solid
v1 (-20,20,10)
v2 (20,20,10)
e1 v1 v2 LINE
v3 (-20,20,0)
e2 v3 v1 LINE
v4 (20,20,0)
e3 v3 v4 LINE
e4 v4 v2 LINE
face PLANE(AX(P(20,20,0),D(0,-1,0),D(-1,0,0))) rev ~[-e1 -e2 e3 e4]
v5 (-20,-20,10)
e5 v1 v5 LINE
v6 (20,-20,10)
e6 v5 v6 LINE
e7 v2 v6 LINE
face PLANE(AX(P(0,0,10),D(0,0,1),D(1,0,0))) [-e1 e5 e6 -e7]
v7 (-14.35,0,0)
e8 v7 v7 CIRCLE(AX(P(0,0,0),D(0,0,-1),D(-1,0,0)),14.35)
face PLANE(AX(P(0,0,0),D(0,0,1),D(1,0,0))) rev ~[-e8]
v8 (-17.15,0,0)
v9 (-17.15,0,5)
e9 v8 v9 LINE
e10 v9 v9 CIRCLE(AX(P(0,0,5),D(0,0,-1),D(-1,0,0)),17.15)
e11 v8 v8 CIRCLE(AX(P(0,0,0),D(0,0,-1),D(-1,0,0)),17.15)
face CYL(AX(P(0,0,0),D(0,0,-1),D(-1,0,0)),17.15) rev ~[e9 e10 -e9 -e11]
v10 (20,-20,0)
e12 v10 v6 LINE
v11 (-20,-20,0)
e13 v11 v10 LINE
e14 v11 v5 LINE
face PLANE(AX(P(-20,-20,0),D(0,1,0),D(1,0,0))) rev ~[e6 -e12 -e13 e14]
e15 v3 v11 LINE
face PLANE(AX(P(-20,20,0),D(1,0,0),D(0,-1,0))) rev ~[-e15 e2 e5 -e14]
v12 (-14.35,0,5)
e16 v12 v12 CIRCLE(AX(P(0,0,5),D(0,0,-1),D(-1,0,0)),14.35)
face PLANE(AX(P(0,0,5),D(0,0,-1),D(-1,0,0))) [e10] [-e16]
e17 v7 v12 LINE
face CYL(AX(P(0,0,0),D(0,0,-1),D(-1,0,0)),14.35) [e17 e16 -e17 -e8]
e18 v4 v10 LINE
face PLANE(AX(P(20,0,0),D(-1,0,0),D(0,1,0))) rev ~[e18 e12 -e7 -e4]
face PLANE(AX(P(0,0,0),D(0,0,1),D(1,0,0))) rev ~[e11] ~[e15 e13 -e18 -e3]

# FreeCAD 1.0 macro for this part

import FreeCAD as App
import Part
import Sketcher

V = App.Vector

doc = App.newDocument("Part")
params = doc.addObject("Spreadsheet::Sheet", "Params")
for row, (alias, value) in enumerate([
    ("sketch1_width", "40 mm"),
    ("pad1_length", "10 mm"),
    ("sketch2_diameter", "34.3 mm"),
    ("sketch2_diameter2", "28.7 mm"),
    ("pocket1_length", "5 mm"),
], start=1):
    params.set(f"A{row}", alias)
    params.set(f"B{row}", "=" + value)
    params.setAlias(f"B{row}", alias)

body = doc.addObject("PartDesign::Body", "Body")

sketch1 = body.newObject("Sketcher::SketchObject", "Sketch")
sketch1.AttachmentSupport = (doc.getObject("XY_Plane"), [""])
sketch1.MapMode = "FlatFace"
sketch1.addGeometry(Part.LineSegment(V(20, 20, 0), V(-20, 20, 0)), False)
sketch1.addGeometry(Part.LineSegment(V(-20, 20, 0), V(-20, -20, 0)), False)
sketch1.addGeometry(Part.LineSegment(V(-20, -20, 0), V(20, -20, 0)), False)
sketch1.addGeometry(Part.LineSegment(V(20, -20, 0), V(20, 20, 0)), False)
sketch1.addConstraint(Sketcher.Constraint("Coincident", 0, 2, 1, 1))
sketch1.addConstraint(Sketcher.Constraint("Coincident", 1, 2, 2, 1))
sketch1.addConstraint(Sketcher.Constraint("Coincident", 2, 2, 3, 1))
sketch1.addConstraint(Sketcher.Constraint("Coincident", 3, 2, 0, 1))
sketch1.addConstraint(Sketcher.Constraint("Horizontal", 0))
sketch1.addConstraint(Sketcher.Constraint("Vertical", 1))
sketch1.addConstraint(Sketcher.Constraint("Horizontal", 2))
sketch1.addConstraint(Sketcher.Constraint("Vertical", 3))
sketch1.addConstraint(Sketcher.Constraint("Symmetric", 0, 2, 2, 2, -1, 1))
sketch1.addConstraint(Sketcher.Constraint("Equal", 2, 1))
sketch1.addConstraint(Sketcher.Constraint("DistanceX", 0, 2, 0, 1, 40.0))
sketch1.setExpression("Constraints[10]", "Params.sketch1_width")
pad1 = body.newObject("PartDesign::Pad", "Pad")
pad1.Profile = sketch1
pad1.setExpression("Length", "Params.pad1_length")

sketch2 = body.newObject("Sketcher::SketchObject", "Sketch001")
sketch2.AttachmentSupport = (doc.getObject("XY_Plane"), [""])
sketch2.MapMode = "FlatFace"
sketch2.addGeometry(Part.Circle(V(0, 0, 0), V(0, 0, 1), 17), False)
sketch2.addGeometry(Part.Circle(V(0, 0, 0), V(0, 0, 1), 14), False)
sketch2.addConstraint(Sketcher.Constraint("Coincident", 0, 3, -1, 1))
sketch2.addConstraint(Sketcher.Constraint("Coincident", 1, 3, -1, 1))
sketch2.addConstraint(Sketcher.Constraint("Diameter", 0, 34.3))
sketch2.addConstraint(Sketcher.Constraint("Diameter", 1, 28.7))
sketch2.setExpression("Constraints[2]", "Params.sketch2_diameter")
sketch2.setExpression("Constraints[3]", "Params.sketch2_diameter2")
pocket1 = body.newObject("PartDesign::Pocket", "Pocket")
pocket1.Profile = sketch2
pocket1.setExpression("Length", "Params.pocket1_length")
pocket1.Reversed = True

doc.recompute()
